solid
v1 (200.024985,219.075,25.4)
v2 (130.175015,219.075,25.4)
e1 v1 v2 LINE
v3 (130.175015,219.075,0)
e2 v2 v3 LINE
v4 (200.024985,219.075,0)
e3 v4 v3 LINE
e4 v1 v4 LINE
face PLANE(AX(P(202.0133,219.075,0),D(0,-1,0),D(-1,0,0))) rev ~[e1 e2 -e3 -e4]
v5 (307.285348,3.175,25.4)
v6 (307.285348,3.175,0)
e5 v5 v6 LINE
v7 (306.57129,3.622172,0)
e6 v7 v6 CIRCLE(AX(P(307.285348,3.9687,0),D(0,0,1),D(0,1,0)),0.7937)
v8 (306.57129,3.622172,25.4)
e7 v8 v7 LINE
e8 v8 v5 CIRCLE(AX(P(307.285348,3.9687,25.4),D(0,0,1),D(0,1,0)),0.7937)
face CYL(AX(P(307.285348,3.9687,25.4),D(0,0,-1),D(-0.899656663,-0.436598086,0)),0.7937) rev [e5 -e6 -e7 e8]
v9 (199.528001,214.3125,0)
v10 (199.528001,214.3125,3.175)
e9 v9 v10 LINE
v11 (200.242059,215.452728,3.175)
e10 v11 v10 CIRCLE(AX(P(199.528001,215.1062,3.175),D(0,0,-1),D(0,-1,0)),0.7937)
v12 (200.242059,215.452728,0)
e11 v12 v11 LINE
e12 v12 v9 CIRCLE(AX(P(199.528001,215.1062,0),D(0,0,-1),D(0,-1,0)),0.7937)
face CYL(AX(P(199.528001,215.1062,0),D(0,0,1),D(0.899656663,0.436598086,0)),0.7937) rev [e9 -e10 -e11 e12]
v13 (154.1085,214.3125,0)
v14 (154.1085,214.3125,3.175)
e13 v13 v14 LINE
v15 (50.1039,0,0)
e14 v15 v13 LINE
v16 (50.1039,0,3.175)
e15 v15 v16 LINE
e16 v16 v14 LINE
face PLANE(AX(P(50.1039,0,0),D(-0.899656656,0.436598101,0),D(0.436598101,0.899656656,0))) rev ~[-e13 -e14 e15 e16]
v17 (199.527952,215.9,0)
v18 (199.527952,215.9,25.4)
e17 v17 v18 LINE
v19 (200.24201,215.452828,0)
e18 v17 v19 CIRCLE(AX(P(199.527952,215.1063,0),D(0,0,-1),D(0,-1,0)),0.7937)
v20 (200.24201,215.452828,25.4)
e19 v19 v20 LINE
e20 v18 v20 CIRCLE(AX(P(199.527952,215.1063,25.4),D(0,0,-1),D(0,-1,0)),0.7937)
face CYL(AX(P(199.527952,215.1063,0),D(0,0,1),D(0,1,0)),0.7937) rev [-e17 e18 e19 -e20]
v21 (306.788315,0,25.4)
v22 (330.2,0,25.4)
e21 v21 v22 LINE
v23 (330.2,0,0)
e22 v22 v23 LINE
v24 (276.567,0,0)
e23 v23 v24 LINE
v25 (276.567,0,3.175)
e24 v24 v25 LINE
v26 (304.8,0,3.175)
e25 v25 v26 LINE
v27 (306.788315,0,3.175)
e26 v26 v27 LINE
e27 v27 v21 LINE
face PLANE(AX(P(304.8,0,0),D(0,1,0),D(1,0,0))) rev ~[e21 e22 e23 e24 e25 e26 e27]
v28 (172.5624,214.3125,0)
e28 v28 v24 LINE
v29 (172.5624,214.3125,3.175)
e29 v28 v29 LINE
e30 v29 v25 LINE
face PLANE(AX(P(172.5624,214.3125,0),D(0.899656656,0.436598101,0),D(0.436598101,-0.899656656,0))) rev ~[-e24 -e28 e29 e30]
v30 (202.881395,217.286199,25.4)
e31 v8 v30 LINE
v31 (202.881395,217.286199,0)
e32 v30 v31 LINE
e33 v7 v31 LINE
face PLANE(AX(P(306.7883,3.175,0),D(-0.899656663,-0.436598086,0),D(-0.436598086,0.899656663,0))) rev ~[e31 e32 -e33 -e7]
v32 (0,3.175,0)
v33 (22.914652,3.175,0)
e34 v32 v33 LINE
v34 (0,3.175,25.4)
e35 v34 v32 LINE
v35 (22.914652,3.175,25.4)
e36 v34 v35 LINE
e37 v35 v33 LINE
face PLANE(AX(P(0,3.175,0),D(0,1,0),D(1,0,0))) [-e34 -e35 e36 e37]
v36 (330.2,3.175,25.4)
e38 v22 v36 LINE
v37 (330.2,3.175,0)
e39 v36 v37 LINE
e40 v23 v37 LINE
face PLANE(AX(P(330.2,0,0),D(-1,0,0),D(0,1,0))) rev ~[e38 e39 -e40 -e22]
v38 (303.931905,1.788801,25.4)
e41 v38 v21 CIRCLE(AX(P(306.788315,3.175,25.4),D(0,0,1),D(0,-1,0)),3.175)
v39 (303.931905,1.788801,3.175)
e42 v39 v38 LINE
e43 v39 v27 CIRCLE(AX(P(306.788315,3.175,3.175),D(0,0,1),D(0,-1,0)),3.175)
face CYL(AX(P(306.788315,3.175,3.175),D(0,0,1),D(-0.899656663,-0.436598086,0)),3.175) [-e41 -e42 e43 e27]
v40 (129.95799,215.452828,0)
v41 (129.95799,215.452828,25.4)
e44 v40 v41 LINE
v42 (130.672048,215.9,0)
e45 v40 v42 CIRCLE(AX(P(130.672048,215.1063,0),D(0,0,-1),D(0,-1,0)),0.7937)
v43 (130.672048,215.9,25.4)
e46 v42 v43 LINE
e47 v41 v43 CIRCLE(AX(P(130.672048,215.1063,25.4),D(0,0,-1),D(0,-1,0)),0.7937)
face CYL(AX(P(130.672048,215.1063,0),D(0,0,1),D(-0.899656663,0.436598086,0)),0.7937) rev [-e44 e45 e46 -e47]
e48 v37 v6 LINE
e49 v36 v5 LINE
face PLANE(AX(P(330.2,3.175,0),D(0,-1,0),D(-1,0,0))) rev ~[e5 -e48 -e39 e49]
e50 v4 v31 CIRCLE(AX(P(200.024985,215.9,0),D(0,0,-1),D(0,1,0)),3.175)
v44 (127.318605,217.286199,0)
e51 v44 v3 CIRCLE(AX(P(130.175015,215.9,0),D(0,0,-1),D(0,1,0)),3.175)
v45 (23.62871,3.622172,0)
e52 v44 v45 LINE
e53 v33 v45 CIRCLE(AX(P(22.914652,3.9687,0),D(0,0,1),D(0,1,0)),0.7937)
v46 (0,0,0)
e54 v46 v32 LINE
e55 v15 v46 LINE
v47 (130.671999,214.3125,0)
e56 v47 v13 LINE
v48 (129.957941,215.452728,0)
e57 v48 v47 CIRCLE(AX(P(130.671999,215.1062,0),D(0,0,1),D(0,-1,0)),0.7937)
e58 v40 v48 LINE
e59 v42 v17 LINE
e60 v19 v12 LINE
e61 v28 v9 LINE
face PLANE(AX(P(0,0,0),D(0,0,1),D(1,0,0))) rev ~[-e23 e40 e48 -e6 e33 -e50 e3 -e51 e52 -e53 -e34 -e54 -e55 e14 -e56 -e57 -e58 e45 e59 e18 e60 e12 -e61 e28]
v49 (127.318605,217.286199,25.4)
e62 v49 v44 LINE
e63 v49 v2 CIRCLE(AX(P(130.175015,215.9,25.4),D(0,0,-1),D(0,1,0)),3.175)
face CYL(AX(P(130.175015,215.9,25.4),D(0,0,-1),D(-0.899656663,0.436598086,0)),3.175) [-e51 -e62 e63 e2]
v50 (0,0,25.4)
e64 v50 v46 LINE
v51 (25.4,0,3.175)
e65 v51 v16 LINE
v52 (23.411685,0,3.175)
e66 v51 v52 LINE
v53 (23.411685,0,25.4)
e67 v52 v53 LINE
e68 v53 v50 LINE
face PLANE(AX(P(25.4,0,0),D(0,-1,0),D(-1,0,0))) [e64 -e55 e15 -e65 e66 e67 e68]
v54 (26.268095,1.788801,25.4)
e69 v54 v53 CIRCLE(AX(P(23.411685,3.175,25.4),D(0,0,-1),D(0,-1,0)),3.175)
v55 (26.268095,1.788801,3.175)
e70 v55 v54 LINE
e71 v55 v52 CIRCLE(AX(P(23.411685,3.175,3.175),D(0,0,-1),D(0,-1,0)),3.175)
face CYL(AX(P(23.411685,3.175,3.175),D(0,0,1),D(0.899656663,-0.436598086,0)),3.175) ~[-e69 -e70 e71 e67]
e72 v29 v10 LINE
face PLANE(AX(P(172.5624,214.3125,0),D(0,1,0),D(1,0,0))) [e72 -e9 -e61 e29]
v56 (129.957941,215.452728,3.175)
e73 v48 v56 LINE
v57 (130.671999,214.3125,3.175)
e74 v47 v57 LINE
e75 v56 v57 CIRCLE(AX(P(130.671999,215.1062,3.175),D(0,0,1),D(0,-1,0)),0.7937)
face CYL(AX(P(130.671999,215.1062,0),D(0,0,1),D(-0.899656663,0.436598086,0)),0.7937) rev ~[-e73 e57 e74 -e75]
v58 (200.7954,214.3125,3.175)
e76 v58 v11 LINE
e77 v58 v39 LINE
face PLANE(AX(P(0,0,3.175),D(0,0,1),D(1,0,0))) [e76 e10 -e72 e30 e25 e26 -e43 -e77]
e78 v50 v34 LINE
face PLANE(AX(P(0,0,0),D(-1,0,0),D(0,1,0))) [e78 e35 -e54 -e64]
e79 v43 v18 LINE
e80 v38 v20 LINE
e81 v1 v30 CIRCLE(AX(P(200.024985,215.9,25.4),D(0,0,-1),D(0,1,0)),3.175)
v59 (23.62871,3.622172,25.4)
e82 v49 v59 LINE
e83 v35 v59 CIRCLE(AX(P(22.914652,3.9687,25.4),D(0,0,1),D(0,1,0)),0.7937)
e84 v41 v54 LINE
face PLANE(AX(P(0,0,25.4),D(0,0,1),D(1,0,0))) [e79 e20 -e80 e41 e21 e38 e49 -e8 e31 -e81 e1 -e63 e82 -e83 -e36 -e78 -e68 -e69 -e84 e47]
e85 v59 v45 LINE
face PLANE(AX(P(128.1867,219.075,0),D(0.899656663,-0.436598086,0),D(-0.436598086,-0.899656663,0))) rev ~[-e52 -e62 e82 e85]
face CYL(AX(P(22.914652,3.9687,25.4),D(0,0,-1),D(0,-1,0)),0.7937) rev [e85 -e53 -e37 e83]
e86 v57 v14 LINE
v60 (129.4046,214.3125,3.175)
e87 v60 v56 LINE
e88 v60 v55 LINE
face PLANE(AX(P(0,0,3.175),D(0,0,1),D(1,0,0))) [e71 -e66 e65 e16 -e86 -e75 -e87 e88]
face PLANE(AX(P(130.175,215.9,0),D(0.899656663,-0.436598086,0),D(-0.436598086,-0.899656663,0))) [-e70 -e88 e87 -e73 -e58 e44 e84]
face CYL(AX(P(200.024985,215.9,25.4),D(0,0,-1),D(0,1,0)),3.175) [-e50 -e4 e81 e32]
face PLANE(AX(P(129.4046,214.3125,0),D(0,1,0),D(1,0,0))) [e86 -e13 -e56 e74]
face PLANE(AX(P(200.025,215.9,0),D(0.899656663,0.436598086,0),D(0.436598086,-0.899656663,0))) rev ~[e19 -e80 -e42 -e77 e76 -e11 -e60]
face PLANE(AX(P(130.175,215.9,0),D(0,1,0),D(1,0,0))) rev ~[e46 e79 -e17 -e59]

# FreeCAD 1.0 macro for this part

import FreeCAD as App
import Part
import Sketcher
Q = App.Units.Quantity


def edges_at(feature, points):
    """Names of the edges that pass closest to the given points."""
    edges = feature.Shape.Edges
    near = lambda p: min(range(len(edges)), key=lambda i: edges[i].distToShape(Part.Vertex(*p))[0])
    return sorted({f"Edge{near(p) + 1}" for p in points})


def add_polygon(sketch, points):
    """Adds a closed chain of lines whose ends are joined by coincident constraints."""
    first, n = sketch.GeometryCount, len(points)
    for a, b in zip(points, points[1:] + points[:1]):
        sketch.addGeometry(Part.LineSegment(App.Vector(*a, 0), App.Vector(*b, 0)), False)
    for i in range(n):
        sketch.addConstraint(Sketcher.Constraint("Coincident", first + i, 2, first + (i + 1) % n, 1))

doc = App.newDocument("Part")
body = doc.addObject("PartDesign::Body", "Body")

# Sketch on XY plane
sketch1 = body.newObject("Sketcher::SketchObject", "Sketch")
sketch1.AttachmentSupport = (doc.getObject("XY_Plane"), [""])
sketch1.MapMode = "FlatFace"
add_polygon(sketch1, [(25.4, 0), (130.175, 215.9), (200.025, 215.9), (304.8, 0), (330.2, 0), (330.2, 3.175), (306.7883, 3.175), (202.0133, 219.075), (128.1867, 219.075), (23.4117, 3.175), (0, 3.175), (0, 0)])  # lines 0-11
sketch1.addConstraint(Sketcher.Constraint("Horizontal", 1))
sketch1.addConstraint(Sketcher.Constraint("Horizontal", 3))
sketch1.addConstraint(Sketcher.Constraint("Vertical", 4))
sketch1.addConstraint(Sketcher.Constraint("Horizontal", 5))
sketch1.addConstraint(Sketcher.Constraint("Horizontal", 7))
sketch1.addConstraint(Sketcher.Constraint("Horizontal", 9))
sketch1.addConstraint(Sketcher.Constraint("Vertical", 10))
sketch1.addConstraint(Sketcher.Constraint("Horizontal", 11))
sketch1.addConstraint(Sketcher.Constraint("Coincident", 10, 2, -1, 1))
sketch1.addConstraint(Sketcher.Constraint("PointOnObject", 2, 2, -1))
sketch1.addConstraint(Sketcher.Constraint("Parallel", 2, 6))
sketch1.addConstraint(Sketcher.Constraint("Parallel", 0, 8))
sketch1.addConstraint(Sketcher.Constraint("Horizontal", 5, 2, 8, 2))
sketch1.addConstraint(Sketcher.Constraint("Equal", 5, 9))
sketch1.addConstraint(Sketcher.Constraint("Equal", 3, 11))
sketch1.addConstraint(Sketcher.Constraint("Equal", 0, 2))
sketch1.addConstraint(Sketcher.Constraint("Equal", 2, 6))
sketch1.addConstraint(Sketcher.Constraint("DistanceX", 3, 1, 3, 2, Q("1 in")))
sketch1.addConstraint(Sketcher.Constraint("DistanceX", -1, 1, 3, 2, Q("13 in")))
sketch1.addConstraint(Sketcher.Constraint("DistanceX", 1, 1, 1, 2, Q("2.75 in")))
sketch1.addConstraint(Sketcher.Constraint("DistanceY", 4, 1, 4, 2, Q("0.125 in")))
sketch1.addConstraint(Sketcher.Constraint("DistanceY", -1, 1, 6, 2, Q("8.625 in")))
sketch1.addConstraint(Sketcher.Constraint("DistanceX", 5, 2, 5, 1, 23.4117))
pad1 = body.newObject("PartDesign::Pad", "Pad")
pad1.Profile = sketch1
pad1.Length = Q("1 in")

# Sketch on XY plane
sketch2 = body.newObject("Sketcher::SketchObject", "Sketch001")
sketch2.AttachmentSupport = (doc.getObject("XY_Plane"), [""])
sketch2.MapMode = "FlatFace"
add_polygon(sketch2, [(129.404596, 214.312502), (130.175, 215.9), (200.025, 215.9), (200.7954, 214.3125), (172.5624, 214.3125), (276.567, 0), (330.2, 0), (330.2, 3.175), (306.7883, 3.175), (202.0133, 219.075), (128.1867, 219.075), (23.4117, 3.175), (0, 3.175), (0, 0), (50.1039, 0), (154.1085, 214.3125)])  # lines 0-15
sketch2.addConstraint(Sketcher.Constraint("Horizontal", 1))
sketch2.addConstraint(Sketcher.Constraint("Horizontal", 3))
sketch2.addConstraint(Sketcher.Constraint("Horizontal", 5))
sketch2.addConstraint(Sketcher.Constraint("Vertical", 6))
sketch2.addConstraint(Sketcher.Constraint("Horizontal", 7))
sketch2.addConstraint(Sketcher.Constraint("Horizontal", 9))
sketch2.addConstraint(Sketcher.Constraint("Horizontal", 11))
sketch2.addConstraint(Sketcher.Constraint("Vertical", 12))
sketch2.addConstraint(Sketcher.Constraint("Horizontal", 13))
sketch2.addConstraint(Sketcher.Constraint("Horizontal", 15))
sketch2.addConstraint(Sketcher.Constraint("Coincident", 12, 2, -1, 1))
sketch2.addConstraint(Sketcher.Constraint("PointOnObject", 4, 2, -1))
sketch2.addConstraint(Sketcher.Constraint("Parallel", 2, 4))
sketch2.addConstraint(Sketcher.Constraint("Parallel", 4, 8))
sketch2.addConstraint(Sketcher.Constraint("Parallel", 0, 10))
sketch2.addConstraint(Sketcher.Constraint("Parallel", 10, 14))
sketch2.addConstraint(Sketcher.Constraint("Horizontal", 7, 2, 10, 2))
sketch2.addConstraint(Sketcher.Constraint("Horizontal", 3, 2, 14, 2))
sketch2.addConstraint(Sketcher.Constraint("Equal", 7, 11))
sketch2.addConstraint(Sketcher.Constraint("Equal", 8, 10))
sketch2.addConstraint(Sketcher.Constraint("DistanceX", -1, 1, 5, 2, Q("13 in")))
sketch2.addConstraint(Sketcher.Constraint("DistanceX", 1, 1, 1, 2, Q("2.75 in")))
sketch2.addConstraint(Sketcher.Constraint("DistanceY", 6, 1, 6, 2, Q("0.125 in")))
sketch2.addConstraint(Sketcher.Constraint("DistanceY", -1, 1, 8, 2, Q("8.625 in")))
sketch2.addConstraint(Sketcher.Constraint("DistanceY", 2, 2, 1, 2, Q("0.0625 in")))
sketch2.addConstraint(Sketcher.Constraint("DistanceY", 1, 2, 8, 2, Q("0.125 in")))
sketch2.addConstraint(Sketcher.Constraint("DistanceX", 13, 1, 13, 2, Q("1.9726 in")))
sketch2.addConstraint(Sketcher.Constraint("DistanceX", 15, 2, 15, 1, Q("0.9726 in")))
sketch2.addConstraint(Sketcher.Constraint("DistanceX", -1, 1, 0, 2, Q("5.125 in")))
sketch2.addConstraint(Sketcher.Constraint("DistanceX", 3, 2, 3, 1, 28.233))
sketch2.addConstraint(Sketcher.Constraint("DistanceX", 7, 2, 7, 1, 23.4117))
pad2 = body.newObject("PartDesign::Pad", "Pad001")
pad2.Profile = sketch2
pad2.Length = Q("0.125 in")
doc.recompute()

fillet = body.newObject("PartDesign::Fillet", "Fillet")
fillet.Base = (pad2, edges_at(pad2, [
    (130.175, 215.9, 12.7),
    (200.025, 215.9, 12.7),
    (200.795, 214.312, 1.587),
    (129.405, 214.312, 1.587),
    (23.412, 3.175, 12.7),
    (306.788, 3.175, 12.7),
]))
fillet.Radius = Q("0.031248 in")
doc.recompute()

fillet2 = body.newObject("PartDesign::Fillet", "Fillet001")
fillet2.Base = (fillet, edges_at(fillet, [
    (128.187, 219.075, 12.7),
    (202.013, 219.075, 12.7),
    (25.4, 0, 14.287),
    (304.8, 0, 14.287),
]))
fillet2.Radius = Q("0.125 in")

doc.recompute()
